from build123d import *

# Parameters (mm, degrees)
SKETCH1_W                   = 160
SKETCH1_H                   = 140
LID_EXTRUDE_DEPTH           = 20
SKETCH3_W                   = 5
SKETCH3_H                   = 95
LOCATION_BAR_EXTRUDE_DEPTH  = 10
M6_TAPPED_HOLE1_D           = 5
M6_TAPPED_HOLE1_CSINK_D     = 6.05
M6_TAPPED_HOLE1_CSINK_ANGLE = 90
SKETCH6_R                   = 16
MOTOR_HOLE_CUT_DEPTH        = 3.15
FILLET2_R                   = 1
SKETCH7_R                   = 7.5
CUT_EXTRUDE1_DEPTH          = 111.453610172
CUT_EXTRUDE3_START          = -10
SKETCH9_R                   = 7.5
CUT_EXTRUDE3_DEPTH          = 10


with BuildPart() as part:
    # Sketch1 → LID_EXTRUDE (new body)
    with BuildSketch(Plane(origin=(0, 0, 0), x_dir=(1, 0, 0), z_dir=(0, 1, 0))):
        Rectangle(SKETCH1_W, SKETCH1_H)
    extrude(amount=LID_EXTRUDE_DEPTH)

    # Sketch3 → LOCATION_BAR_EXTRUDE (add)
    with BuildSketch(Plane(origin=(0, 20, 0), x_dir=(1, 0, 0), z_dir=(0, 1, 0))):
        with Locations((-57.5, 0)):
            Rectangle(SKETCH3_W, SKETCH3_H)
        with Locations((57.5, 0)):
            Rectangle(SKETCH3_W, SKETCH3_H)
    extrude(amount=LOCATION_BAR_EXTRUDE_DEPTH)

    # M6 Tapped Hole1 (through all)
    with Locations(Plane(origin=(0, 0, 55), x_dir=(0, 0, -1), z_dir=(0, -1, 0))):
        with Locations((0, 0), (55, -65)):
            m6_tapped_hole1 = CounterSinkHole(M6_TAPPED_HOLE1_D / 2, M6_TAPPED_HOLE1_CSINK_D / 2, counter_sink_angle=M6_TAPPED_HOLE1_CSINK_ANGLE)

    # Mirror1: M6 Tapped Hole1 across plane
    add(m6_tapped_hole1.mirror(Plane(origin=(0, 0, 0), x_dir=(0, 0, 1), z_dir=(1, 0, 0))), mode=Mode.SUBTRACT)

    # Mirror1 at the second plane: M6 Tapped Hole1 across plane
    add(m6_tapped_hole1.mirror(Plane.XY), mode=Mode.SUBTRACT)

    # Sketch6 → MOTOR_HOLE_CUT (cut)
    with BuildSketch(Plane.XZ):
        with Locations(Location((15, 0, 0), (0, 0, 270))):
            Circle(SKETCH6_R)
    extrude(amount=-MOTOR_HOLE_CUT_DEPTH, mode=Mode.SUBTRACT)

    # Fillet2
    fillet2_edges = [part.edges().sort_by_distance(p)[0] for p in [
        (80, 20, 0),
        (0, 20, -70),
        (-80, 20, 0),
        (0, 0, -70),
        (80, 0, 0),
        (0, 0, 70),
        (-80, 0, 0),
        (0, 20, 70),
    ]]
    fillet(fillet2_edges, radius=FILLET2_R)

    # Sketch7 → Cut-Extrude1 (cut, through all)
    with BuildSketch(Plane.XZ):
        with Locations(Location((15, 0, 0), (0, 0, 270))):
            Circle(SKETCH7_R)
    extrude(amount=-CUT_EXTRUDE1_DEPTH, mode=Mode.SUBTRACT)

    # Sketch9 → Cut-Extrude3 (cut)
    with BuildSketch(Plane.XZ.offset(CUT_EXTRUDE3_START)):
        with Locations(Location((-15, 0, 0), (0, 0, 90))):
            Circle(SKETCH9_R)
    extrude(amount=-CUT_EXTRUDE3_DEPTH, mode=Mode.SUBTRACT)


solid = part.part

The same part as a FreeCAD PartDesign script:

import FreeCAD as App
import Part
import Sketcher

V = App.Vector


def edges_at(feature, points):
    """Names of the edges that pass closest to the given points."""
    edges = feature.Shape.Edges
    near = lambda p: min(range(len(edges)), key=lambda i: edges[i].distToShape(Part.Vertex(*p))[0])
    return sorted({f"Edge{near(p) + 1}" for p in points})


def add_polygon(sketch, points):
    """Adds a closed chain of lines whose ends are joined by coincident constraints."""
    first, n = sketch.GeometryCount, len(points)
    for a, b in zip(points, points[1:] + points[:1]):
        sketch.addGeometry(Part.LineSegment(App.Vector(*a, 0), App.Vector(*b, 0)), False)
    for i in range(n):
        sketch.addConstraint(Sketcher.Constraint("Coincident", first + i, 2, first + (i + 1) % n, 1))

doc = App.newDocument("Part")
body = doc.addObject("PartDesign::Body", "Body")

sketch1 = body.newObject("Sketcher::SketchObject", "Sketch")
sketch1.AttachmentSupport = (doc.getObject("XZ_Plane"), [""])
sketch1.MapMode = "FlatFace"
add_polygon(sketch1, [(-80, -70), (-80, 70), (80, 70), (80, -70)])
sketch1.addConstraint([
    Sketcher.Constraint("Vertical", 0),
    Sketcher.Constraint("Horizontal", 1),
    Sketcher.Constraint("Vertical", 2),
    Sketcher.Constraint("Horizontal", 3),
    Sketcher.Constraint("Symmetric", 0, 2, 2, 2, -1, 1),
    Sketcher.Constraint("DistanceX", 1, 1, 1, 2, 160.0),
    Sketcher.Constraint("DistanceY", 0, 1, 0, 2, 140.0),
])
pad1 = body.newObject("PartDesign::Pad", "Pad")
pad1.Profile = sketch1
pad1.Length = 20
pad1.Reversed = True

sketch2 = body.newObject("Sketcher::SketchObject", "Sketch001")
sketch2.AttachmentSupport = (doc.getObject("XZ_Plane"), [""])
sketch2.MapMode = "FlatFace"
sketch2.AttachmentOffset = App.Placement(V(0, 0, -20), App.Rotation())
add_polygon(sketch2, [(-60, -48), (-60, 48), (-55, 48), (-55, -48)])
add_polygon(sketch2, [(55, -48), (55, 48), (60, 48), (60, -48)])
sketch2.addConstraint([
    Sketcher.Constraint("Vertical", 0),
    Sketcher.Constraint("Horizontal", 1),
    Sketcher.Constraint("Vertical", 2),
    Sketcher.Constraint("Horizontal", 3),
    Sketcher.Constraint("Vertical", 4),
    Sketcher.Constraint("Horizontal", 5),
    Sketcher.Constraint("Vertical", 6),
    Sketcher.Constraint("Horizontal", 7),
    Sketcher.Constraint("Symmetric", 2, 2, 4, 2, -1, 1),
    Sketcher.Constraint("Symmetric", 0, 2, 6, 2, -1, 1),
    Sketcher.Constraint("Horizontal", 1, 2, 4, 2),
    Sketcher.Constraint("DistanceX", 1, 1, 1, 2, 5.0),
    Sketcher.Constraint("DistanceY", 0, 1, 0, 2, 95.0),
    Sketcher.Constraint("DistanceX", 0, 2, -1, 1, 60.0),
])
pad2 = body.newObject("PartDesign::Pad", "Pad001")
pad2.Profile = sketch2
pad2.Length = 10
pad2.Reversed = True

sketch3 = body.newObject("Sketcher::SketchObject", "Sketch002")
sketch3.AttachmentSupport = (doc.getObject("XZ_Plane"), [""])
sketch3.MapMode = "FlatFace"
sketch3.addGeometry([
    Part.Circle(V(0, 55, 0), V(0, 0, 1), 2.5),
    Part.Circle(V(-65, 0, 0), V(0, 0, 1), 2.5),
], False)
sketch3.addConstraint([
    Sketcher.Constraint("Equal", 0, 1),
    Sketcher.Constraint("PointOnObject", 0, 3, -2),
    Sketcher.Constraint("PointOnObject", 1, 3, -1),
    Sketcher.Constraint("Diameter", 0, 5.0),
    Sketcher.Constraint("DistanceY", -1, 1, 0, 3, 55.0),
    Sketcher.Constraint("DistanceX", 1, 3, -1, 1, 65.0),
])
doc.recompute()
hole = body.newObject("PartDesign::Hole", "Hole")
hole.Profile = sketch3
hole.ThreadType = "None"
hole.Diameter = 5
hole.DepthType = "ThroughAll"
hole.HoleCutType = "Countersink"
hole.HoleCutDiameter = 6.05
hole.HoleCutCountersinkAngle = 90
doc.recompute()

mirrored = body.newObject("PartDesign::Mirrored", "Mirrored")
mirrored.Originals = [hole]
mirrored.MirrorPlane = (doc.getObject("YZ_Plane"), [""])
body.Tip = mirrored
doc.recompute()

mirrored2 = body.newObject("PartDesign::Mirrored", "Mirrored001")
mirrored2.Originals = [hole]
mirrored2.MirrorPlane = (doc.getObject("XY_Plane"), [""])
body.Tip = mirrored2

sketch4 = body.newObject("Sketcher::SketchObject", "Sketch003")
sketch4.AttachmentSupport = (doc.getObject("XZ_Plane"), [""])
sketch4.MapMode = "FlatFace"
sketch4.addGeometry(Part.Circle(V(15, 0, 0), V(0, 0, 1), 16), False)
sketch4.addConstraint([
    Sketcher.Constraint("PointOnObject", 0, 3, -1),
    Sketcher.Constraint("Diameter", 0, 32.0),
    Sketcher.Constraint("DistanceX", -1, 1, 0, 3, 15.0),
])
pocket1 = body.newObject("PartDesign::Pocket", "Pocket")
pocket1.Profile = sketch4
pocket1.Length = 3.15
doc.recompute()

fillet = body.newObject("PartDesign::Fillet", "Fillet")
fillet.Base = (pocket1, edges_at(pocket1, [
    (80, 20, 0),
    (0, 20, -70),
    (-80, 20, 0),
    (0, 0, -70),
    (80, 0, 0),
    (0, 0, 70),
    (-80, 0, 0),
    (0, 20, 70),
]))
fillet.Radius = 1

sketch5 = body.newObject("Sketcher::SketchObject", "Sketch004")
sketch5.AttachmentSupport = (doc.getObject("XZ_Plane"), [""])
sketch5.MapMode = "FlatFace"
sketch5.addGeometry(Part.Circle(V(15, 0, 0), V(0, 0, 1), 8), False)
sketch5.addConstraint([
    Sketcher.Constraint("PointOnObject", 0, 3, -1),
    Sketcher.Constraint("Diameter", 0, 15.0),
    Sketcher.Constraint("DistanceX", -1, 1, 0, 3, 15.0),
])
pocket2 = body.newObject("PartDesign::Pocket", "Pocket001")
pocket2.Profile = sketch5
pocket2.Type = "ThroughAll"

sketch6 = body.newObject("Sketcher::SketchObject", "Sketch005")
sketch6.AttachmentSupport = (doc.getObject("XZ_Plane"), [""])
sketch6.MapMode = "FlatFace"
sketch6.AttachmentOffset = App.Placement(V(0, 0, -10), App.Rotation())
sketch6.addGeometry(Part.Circle(V(-15, 0, 0), V(0, 0, 1), 8), False)
sketch6.addConstraint([
    Sketcher.Constraint("PointOnObject", 0, 3, -1),
    Sketcher.Constraint("Diameter", 0, 15.0),
    Sketcher.Constraint("DistanceX", 0, 3, -1, 1, 15.0),
])
pocket3 = body.newObject("PartDesign::Pocket", "Pocket002")
pocket3.Profile = sketch6
pocket3.Length = 10

doc.recompute()
